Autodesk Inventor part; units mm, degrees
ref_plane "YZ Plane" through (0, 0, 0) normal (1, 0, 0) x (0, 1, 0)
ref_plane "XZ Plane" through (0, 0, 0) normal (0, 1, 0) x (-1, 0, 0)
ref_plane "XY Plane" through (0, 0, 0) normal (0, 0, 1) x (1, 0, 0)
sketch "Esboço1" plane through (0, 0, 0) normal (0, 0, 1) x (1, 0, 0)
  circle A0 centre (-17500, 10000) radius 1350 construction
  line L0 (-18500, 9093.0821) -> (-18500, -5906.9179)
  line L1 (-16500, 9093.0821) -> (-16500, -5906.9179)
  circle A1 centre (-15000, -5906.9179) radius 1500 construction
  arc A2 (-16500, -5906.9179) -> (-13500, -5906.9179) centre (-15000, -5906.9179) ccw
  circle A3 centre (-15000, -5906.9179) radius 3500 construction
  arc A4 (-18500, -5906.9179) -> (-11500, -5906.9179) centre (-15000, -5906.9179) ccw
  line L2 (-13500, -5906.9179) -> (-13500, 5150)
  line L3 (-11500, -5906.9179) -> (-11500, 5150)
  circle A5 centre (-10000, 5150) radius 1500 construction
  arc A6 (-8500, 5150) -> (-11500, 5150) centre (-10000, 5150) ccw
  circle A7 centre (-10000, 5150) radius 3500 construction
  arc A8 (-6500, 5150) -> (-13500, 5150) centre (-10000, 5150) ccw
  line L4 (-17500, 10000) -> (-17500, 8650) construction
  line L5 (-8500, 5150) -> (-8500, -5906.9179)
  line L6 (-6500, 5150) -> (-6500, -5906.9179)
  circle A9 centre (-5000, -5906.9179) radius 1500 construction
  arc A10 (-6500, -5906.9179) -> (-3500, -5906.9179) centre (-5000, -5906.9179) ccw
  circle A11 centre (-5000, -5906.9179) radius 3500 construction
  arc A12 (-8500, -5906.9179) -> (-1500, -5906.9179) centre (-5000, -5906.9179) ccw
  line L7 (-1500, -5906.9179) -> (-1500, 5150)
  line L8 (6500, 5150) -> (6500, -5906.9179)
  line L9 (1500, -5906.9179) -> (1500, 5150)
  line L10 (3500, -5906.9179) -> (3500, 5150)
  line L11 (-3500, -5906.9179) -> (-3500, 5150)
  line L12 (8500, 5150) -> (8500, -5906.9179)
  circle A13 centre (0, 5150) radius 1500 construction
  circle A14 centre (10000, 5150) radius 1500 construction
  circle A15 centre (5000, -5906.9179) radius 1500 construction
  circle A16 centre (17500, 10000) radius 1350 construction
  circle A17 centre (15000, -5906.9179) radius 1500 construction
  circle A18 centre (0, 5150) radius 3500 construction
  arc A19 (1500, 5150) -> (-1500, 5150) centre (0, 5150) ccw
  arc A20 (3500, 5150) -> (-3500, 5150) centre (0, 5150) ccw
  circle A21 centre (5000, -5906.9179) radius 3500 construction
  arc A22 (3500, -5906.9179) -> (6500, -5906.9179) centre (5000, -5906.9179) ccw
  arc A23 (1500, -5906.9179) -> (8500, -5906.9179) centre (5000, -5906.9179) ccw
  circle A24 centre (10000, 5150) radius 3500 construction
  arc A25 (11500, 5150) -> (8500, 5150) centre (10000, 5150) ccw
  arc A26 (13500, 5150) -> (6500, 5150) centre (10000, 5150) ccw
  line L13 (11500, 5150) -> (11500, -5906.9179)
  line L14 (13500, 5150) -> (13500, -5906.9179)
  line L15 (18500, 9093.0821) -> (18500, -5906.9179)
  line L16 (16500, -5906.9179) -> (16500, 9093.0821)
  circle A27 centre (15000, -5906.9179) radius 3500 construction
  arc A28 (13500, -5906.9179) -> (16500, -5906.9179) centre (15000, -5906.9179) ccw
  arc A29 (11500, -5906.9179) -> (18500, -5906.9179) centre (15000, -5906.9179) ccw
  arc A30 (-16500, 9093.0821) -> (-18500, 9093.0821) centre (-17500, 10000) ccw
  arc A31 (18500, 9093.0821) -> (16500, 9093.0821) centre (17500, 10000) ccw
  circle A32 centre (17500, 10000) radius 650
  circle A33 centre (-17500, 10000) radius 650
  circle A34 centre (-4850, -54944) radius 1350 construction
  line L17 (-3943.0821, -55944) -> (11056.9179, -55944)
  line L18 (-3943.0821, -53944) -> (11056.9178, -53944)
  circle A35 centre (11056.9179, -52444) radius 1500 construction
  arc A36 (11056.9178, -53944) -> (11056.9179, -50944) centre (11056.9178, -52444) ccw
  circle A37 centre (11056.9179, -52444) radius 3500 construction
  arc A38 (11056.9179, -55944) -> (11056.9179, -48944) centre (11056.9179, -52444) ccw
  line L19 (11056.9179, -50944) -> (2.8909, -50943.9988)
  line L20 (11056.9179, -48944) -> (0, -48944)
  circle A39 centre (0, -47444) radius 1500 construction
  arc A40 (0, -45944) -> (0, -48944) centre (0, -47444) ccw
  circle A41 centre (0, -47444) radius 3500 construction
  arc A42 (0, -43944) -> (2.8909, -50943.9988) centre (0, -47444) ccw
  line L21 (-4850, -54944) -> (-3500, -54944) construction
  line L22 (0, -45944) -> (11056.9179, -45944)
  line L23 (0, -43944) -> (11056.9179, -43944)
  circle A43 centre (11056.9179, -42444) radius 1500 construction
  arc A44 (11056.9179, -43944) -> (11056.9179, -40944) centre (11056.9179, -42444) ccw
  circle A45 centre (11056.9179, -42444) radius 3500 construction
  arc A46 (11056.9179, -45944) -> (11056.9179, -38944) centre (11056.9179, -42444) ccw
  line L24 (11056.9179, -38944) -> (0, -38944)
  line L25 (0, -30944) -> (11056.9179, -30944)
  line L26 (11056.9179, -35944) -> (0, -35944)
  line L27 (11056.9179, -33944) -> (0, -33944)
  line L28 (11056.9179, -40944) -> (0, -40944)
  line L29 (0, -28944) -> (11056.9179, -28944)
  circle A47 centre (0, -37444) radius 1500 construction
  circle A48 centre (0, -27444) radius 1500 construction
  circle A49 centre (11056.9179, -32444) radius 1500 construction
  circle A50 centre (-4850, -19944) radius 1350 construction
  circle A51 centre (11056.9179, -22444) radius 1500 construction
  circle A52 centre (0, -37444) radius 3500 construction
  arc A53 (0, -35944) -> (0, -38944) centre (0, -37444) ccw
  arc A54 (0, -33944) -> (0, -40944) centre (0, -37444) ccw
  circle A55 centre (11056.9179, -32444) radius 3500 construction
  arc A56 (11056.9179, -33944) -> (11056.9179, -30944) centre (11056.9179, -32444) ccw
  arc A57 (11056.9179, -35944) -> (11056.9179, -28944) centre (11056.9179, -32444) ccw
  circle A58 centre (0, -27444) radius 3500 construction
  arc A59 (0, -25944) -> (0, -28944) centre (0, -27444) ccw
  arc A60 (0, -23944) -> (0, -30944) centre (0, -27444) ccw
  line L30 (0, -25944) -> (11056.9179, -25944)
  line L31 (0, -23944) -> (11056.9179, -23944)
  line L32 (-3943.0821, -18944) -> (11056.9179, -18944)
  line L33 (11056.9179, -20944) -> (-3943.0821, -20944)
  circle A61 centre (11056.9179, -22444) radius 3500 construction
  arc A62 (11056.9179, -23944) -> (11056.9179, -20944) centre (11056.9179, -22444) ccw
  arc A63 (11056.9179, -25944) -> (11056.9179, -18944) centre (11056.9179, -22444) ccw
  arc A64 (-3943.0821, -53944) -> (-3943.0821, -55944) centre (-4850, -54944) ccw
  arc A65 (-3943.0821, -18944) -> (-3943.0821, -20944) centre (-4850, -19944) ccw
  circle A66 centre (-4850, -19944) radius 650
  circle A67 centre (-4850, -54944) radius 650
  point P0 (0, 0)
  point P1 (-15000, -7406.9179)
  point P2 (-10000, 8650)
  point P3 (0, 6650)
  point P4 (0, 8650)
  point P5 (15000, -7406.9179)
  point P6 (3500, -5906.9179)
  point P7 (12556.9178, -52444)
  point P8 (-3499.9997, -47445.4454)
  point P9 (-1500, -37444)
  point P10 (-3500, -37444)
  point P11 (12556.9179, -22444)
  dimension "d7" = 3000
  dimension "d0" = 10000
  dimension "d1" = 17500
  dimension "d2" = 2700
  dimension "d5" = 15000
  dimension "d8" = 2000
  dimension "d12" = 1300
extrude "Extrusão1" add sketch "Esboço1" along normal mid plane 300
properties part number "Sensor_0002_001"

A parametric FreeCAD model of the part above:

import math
import FreeCAD as App
import Part
import Sketcher
from FreeCAD import Vector
Q = App.Units.Quantity

doc = App.newDocument("Part")
params = doc.addObject("Spreadsheet::Sheet", "Params")
for row, (alias, value) in enumerate([
    ("sketch1_diameter", "1300 mm"),
    ("sketch1_radius", "1350 mm"),
    ("sketch1_radius2", "1500 mm"),
    ("sketch1_width", "15000 mm"),
    ("pad1_length", "300 mm"),
], start=1):
    params.set(f"A{row}", alias)
    params.set(f"B{row}", "=" + value)
    params.setAlias(f"B{row}", alias)

body = doc.addObject("PartDesign::Body", "Body")
body.AllowCompound = True

sketch1 = doc.addObject("Sketcher::SketchObject", "Sketch")
body.addObject(sketch1)
sketch1.AttachmentSupport = (doc.XY_Plane, [""])
sketch1.MapMode = "FlatFace"
sketch1.addGeometry([
    Part.ArcOfCircle(Part.Circle(Vector(-17500, 10000, 0), Vector(0, 0, 1), 1350.000029), math.radians(-42.205448), math.radians(222.205448)),
    Part.LineSegment(Vector(-18500, 9093.0821, 0), Vector(-18500, -5906.9179, 0)),
    Part.ArcOfCircle(Part.Circle(Vector(-15000, -5906.9179, 0), Vector(0, 0, 1), 3500), math.radians(180), math.radians(360)),
    Part.LineSegment(Vector(-11500, -5906.9179, 0), Vector(-11500, 5150, 0)),
    Part.ArcOfCircle(Part.Circle(Vector(-10000, 5150, 0), Vector(0, 0, 1), 1500), math.radians(0), math.radians(180)),
    Part.LineSegment(Vector(-8500, 5150, 0), Vector(-8500, -5906.9179, 0)),
    Part.ArcOfCircle(Part.Circle(Vector(-5000, -5906.9179, 0), Vector(0, 0, 1), 3500), math.radians(180), math.radians(360)),
    Part.LineSegment(Vector(-1500, -5906.9179, 0), Vector(-1500, 5150, 0)),
    Part.ArcOfCircle(Part.Circle(Vector(0, 5150, 0), Vector(0, 0, 1), 1500), math.radians(0), math.radians(180)),
    Part.LineSegment(Vector(1500, 5150, 0), Vector(1500, -5906.9179, 0)),
    Part.ArcOfCircle(Part.Circle(Vector(5000, -5906.9179, 0), Vector(0, 0, 1), 3500), math.radians(180), math.radians(360)),
    Part.LineSegment(Vector(8500, -5906.9179, 0), Vector(8500, 5150, 0)),
    Part.ArcOfCircle(Part.Circle(Vector(10000, 5150, 0), Vector(0, 0, 1), 1500), math.radians(0), math.radians(180)),
    Part.LineSegment(Vector(11500, 5150, 0), Vector(11500, -5906.9179, 0)),
    Part.ArcOfCircle(Part.Circle(Vector(15000, -5906.9179, 0), Vector(0, 0, 1), 3500), math.radians(180), math.radians(360)),
    Part.LineSegment(Vector(18500, -5906.9179, 0), Vector(18500, 9093.0821, 0)),
    Part.ArcOfCircle(Part.Circle(Vector(17500, 10000, 0), Vector(0, 0, 1), 1350.000029), math.radians(-42.205448), math.radians(222.205448)),
    Part.LineSegment(Vector(16500, 9093.0821, 0), Vector(16500, -5906.9179, 0)),
    Part.ArcOfCircle(Part.Circle(Vector(15000, -5906.9179, 0), Vector(0, 0, 1), 1500), math.radians(180), math.radians(360)),
    Part.LineSegment(Vector(13500, -5906.9179, 0), Vector(13500, 5150, 0)),
    Part.ArcOfCircle(Part.Circle(Vector(10000, 5150, 0), Vector(0, 0, 1), 3500), math.radians(0), math.radians(180)),
    Part.LineSegment(Vector(6500, 5150, 0), Vector(6500, -5906.9179, 0)),
    Part.ArcOfCircle(Part.Circle(Vector(5000, -5906.9179, 0), Vector(0, 0, 1), 1500), math.radians(180), math.radians(360)),
    Part.LineSegment(Vector(3500, -5906.9179, 0), Vector(3500, 5150, 0)),
    Part.ArcOfCircle(Part.Circle(Vector(0, 5150, 0), Vector(0, 0, 1), 3500), math.radians(0), math.radians(180)),
    Part.LineSegment(Vector(-3500, 5150, 0), Vector(-3500, -5906.9179, 0)),
    Part.ArcOfCircle(Part.Circle(Vector(-5000, -5906.9179, 0), Vector(0, 0, 1), 1500), math.radians(180), math.radians(360)),
    Part.LineSegment(Vector(-6500, -5906.9179, 0), Vector(-6500, 5150, 0)),
    Part.ArcOfCircle(Part.Circle(Vector(-10000, 5150, 0), Vector(0, 0, 1), 3500), math.radians(0), math.radians(180)),
    Part.LineSegment(Vector(-13500, 5150, 0), Vector(-13500, -5906.9179, 0)),
    Part.ArcOfCircle(Part.Circle(Vector(-15000, -5906.9179, 0), Vector(0, 0, 1), 1500), math.radians(180), math.radians(360)),
    Part.LineSegment(Vector(-16500, -5906.9179, 0), Vector(-16500, 9093.0821, 0)),
    Part.Circle(Vector(-17500, 10000, 0), Vector(0, 0, 1), 650),
    Part.Circle(Vector(17500, 10000, 0), Vector(0, 0, 1), 650),
    Part.ArcOfCircle(Part.Circle(Vector(-4850, -54944, 0), Vector(0, 0, 1), 1350.000029), math.radians(47.794552), math.radians(312.205448)),
    Part.LineSegment(Vector(-3943.0821, -55944, 0), Vector(11056.9179, -55944, 0)),
    Part.ArcOfCircle(Part.Circle(Vector(11056.9179, -52444, 0), Vector(0, 0, 1), 3500), math.radians(-90), math.radians(90)),
    Part.LineSegment(Vector(11056.9179, -48944, 0), Vector(0, -48944, 0)),
    Part.ArcOfCircle(Part.Circle(Vector(0, -47444, 0), Vector(0, 0, 1), 1500), math.radians(90), math.radians(270)),
    Part.LineSegment(Vector(0, -45944, 0), Vector(11056.9179, -45944, 0)),
    Part.ArcOfCircle(Part.Circle(Vector(11056.9179, -42444, 0), Vector(0, 0, 1), 3500), math.radians(-90), math.radians(90)),
    Part.LineSegment(Vector(11056.9179, -38944, 0), Vector(0, -38944, 0)),
    Part.ArcOfCircle(Part.Circle(Vector(0, -37444, 0), Vector(0, 0, 1), 1500), math.radians(90), math.radians(270)),
    Part.LineSegment(Vector(0, -35944, 0), Vector(11056.9179, -35944, 0)),
    Part.ArcOfCircle(Part.Circle(Vector(11056.9179, -32444, 0), Vector(0, 0, 1), 3500), math.radians(-90), math.radians(90)),
    Part.LineSegment(Vector(11056.9179, -28944, 0), Vector(0, -28944, 0)),
    Part.ArcOfCircle(Part.Circle(Vector(0, -27444, 0), Vector(0, 0, 1), 1500), math.radians(90), math.radians(270)),
    Part.LineSegment(Vector(0, -25944, 0), Vector(11056.9179, -25944, 0)),
    Part.ArcOfCircle(Part.Circle(Vector(11056.9179, -22444, 0), Vector(0, 0, 1), 3500), math.radians(-90), math.radians(90)),
    Part.LineSegment(Vector(11056.9179, -18944, 0), Vector(-3943.0821, -18944, 0)),
    Part.ArcOfCircle(Part.Circle(Vector(-4850, -19944, 0), Vector(0, 0, 1), 1350.000029), math.radians(47.794552), math.radians(312.205448)),
    Part.LineSegment(Vector(-3943.0821, -20944, 0), Vector(11056.9179, -20944, 0)),
    Part.ArcOfCircle(Part.Circle(Vector(11056.9179, -22444, 0), Vector(0, 0, 1), 1500), math.radians(-90), math.radians(90)),
    Part.LineSegment(Vector(11056.9179, -23944, 0), Vector(0, -23944, 0)),
    Part.ArcOfCircle(Part.Circle(Vector(0, -27444, 0), Vector(0, 0, 1), 3500), math.radians(90), math.radians(270)),
    Part.LineSegment(Vector(0, -30944, 0), Vector(11056.9179, -30944, 0)),
    Part.ArcOfCircle(Part.Circle(Vector(11056.9179, -32444, 0), Vector(0, 0, 1), 1500), math.radians(-90), math.radians(90)),
    Part.LineSegment(Vector(11056.9179, -33944, 0), Vector(0, -33944, 0)),
    Part.ArcOfCircle(Part.Circle(Vector(0, -37444, 0), Vector(0, 0, 1), 3500), math.radians(90), math.radians(270)),
    Part.LineSegment(Vector(0, -40944, 0), Vector(11056.9179, -40944, 0)),
    Part.ArcOfCircle(Part.Circle(Vector(11056.9179, -42444, 0), Vector(0, 0, 1), 1500), math.radians(-90), math.radians(90)),
    Part.LineSegment(Vector(11056.9179, -43944, 0), Vector(0, -43944, 0)),
    Part.ArcOfCircle(Part.Circle(Vector(0, -47444, 0), Vector(0, 0, 1), 3500), math.radians(90), math.radians(270.047325)),
    Part.LineSegment(Vector(2.8909, -50943.9988, 0), Vector(11056.9179, -50944, 0)),
    Part.ArcOfCircle(Part.Circle(Vector(11056.9178, -52444, 0), Vector(0, 0, 1), 1500), math.radians(-90), math.radians(89.999996)),
    Part.LineSegment(Vector(11056.9178, -53944, 0), Vector(-3943.0821, -53944, 0)),
    Part.Circle(Vector(-4850, -54944, 0), Vector(0, 0, 1), 650),
    Part.Circle(Vector(-4850, -19944, 0), Vector(0, 0, 1), 650),
], False)
sketch1.addConstraint([
    Sketcher.Constraint("Coincident", 0, 2, 1, 1),
    Sketcher.Constraint("Coincident", 1, 2, 2, 1),
    Sketcher.Constraint("Coincident", 2, 2, 3, 1),
    Sketcher.Constraint("Coincident", 3, 2, 4, 2),
    Sketcher.Constraint("Coincident", 4, 1, 5, 1),
    Sketcher.Constraint("Coincident", 5, 2, 6, 1),
    Sketcher.Constraint("Coincident", 6, 2, 7, 1),
    Sketcher.Constraint("Coincident", 7, 2, 8, 2),
    Sketcher.Constraint("Coincident", 8, 1, 9, 1),
    Sketcher.Constraint("Coincident", 9, 2, 10, 1),
    Sketcher.Constraint("Coincident", 10, 2, 11, 1),
    Sketcher.Constraint("Coincident", 11, 2, 12, 2),
    Sketcher.Constraint("Coincident", 12, 1, 13, 1),
    Sketcher.Constraint("Coincident", 13, 2, 14, 1),
    Sketcher.Constraint("Coincident", 14, 2, 15, 1),
    Sketcher.Constraint("Coincident", 15, 2, 16, 1),
    Sketcher.Constraint("Coincident", 16, 2, 17, 1),
    Sketcher.Constraint("Coincident", 17, 2, 18, 2),
    Sketcher.Constraint("Coincident", 18, 1, 19, 1),
    Sketcher.Constraint("Coincident", 19, 2, 20, 1),
    Sketcher.Constraint("Coincident", 20, 2, 21, 1),
    Sketcher.Constraint("Coincident", 21, 2, 22, 2),
    Sketcher.Constraint("Coincident", 22, 1, 23, 1),
    Sketcher.Constraint("Coincident", 23, 2, 24, 1),
    Sketcher.Constraint("Coincident", 24, 2, 25, 1),
    Sketcher.Constraint("Coincident", 25, 2, 26, 2),
    Sketcher.Constraint("Coincident", 26, 1, 27, 1),
    Sketcher.Constraint("Coincident", 27, 2, 28, 1),
    Sketcher.Constraint("Coincident", 28, 2, 29, 1),
    Sketcher.Constraint("Coincident", 29, 2, 30, 2),
    Sketcher.Constraint("Coincident", 30, 1, 31, 1),
    Sketcher.Constraint("Coincident", 31, 2, 0, 1),
    Sketcher.Constraint("Coincident", 34, 2, 35, 1),
    Sketcher.Constraint("Coincident", 35, 2, 36, 1),
    Sketcher.Constraint("Coincident", 36, 2, 37, 1),
    Sketcher.Constraint("Coincident", 37, 2, 38, 2),
    Sketcher.Constraint("Coincident", 38, 1, 39, 1),
    Sketcher.Constraint("Coincident", 39, 2, 40, 1),
    Sketcher.Constraint("Coincident", 40, 2, 41, 1),
    Sketcher.Constraint("Coincident", 41, 2, 42, 2),
    Sketcher.Constraint("Coincident", 42, 1, 43, 1),
    Sketcher.Constraint("Coincident", 43, 2, 44, 1),
    Sketcher.Constraint("Coincident", 44, 2, 45, 1),
    Sketcher.Constraint("Coincident", 45, 2, 46, 2),
    Sketcher.Constraint("Coincident", 46, 1, 47, 1),
    Sketcher.Constraint("Coincident", 47, 2, 48, 1),
    Sketcher.Constraint("Coincident", 48, 2, 49, 1),
    Sketcher.Constraint("Coincident", 49, 2, 50, 1),
    Sketcher.Constraint("Coincident", 50, 2, 51, 1),
    Sketcher.Constraint("Coincident", 51, 2, 52, 2),
    Sketcher.Constraint("Coincident", 52, 1, 53, 1),
    Sketcher.Constraint("Coincident", 53, 2, 54, 1),
    Sketcher.Constraint("Coincident", 54, 2, 55, 1),
    Sketcher.Constraint("Coincident", 55, 2, 56, 2),
    Sketcher.Constraint("Coincident", 56, 1, 57, 1),
    Sketcher.Constraint("Coincident", 57, 2, 58, 1),
    Sketcher.Constraint("Coincident", 58, 2, 59, 1),
    Sketcher.Constraint("Coincident", 59, 2, 60, 2),
    Sketcher.Constraint("Coincident", 60, 1, 61, 1),
    Sketcher.Constraint("Coincident", 61, 2, 62, 1),
    Sketcher.Constraint("Coincident", 62, 2, 63, 1),
    Sketcher.Constraint("Coincident", 63, 2, 64, 2),
    Sketcher.Constraint("Coincident", 64, 1, 65, 1),
    Sketcher.Constraint("Coincident", 65, 2, 34, 1),
    Sketcher.Constraint("Vertical", 1),
    Sketcher.Constraint("Vertical", 3),
    Sketcher.Constraint("Vertical", 5),
    Sketcher.Constraint("Vertical", 7),
    Sketcher.Constraint("Vertical", 9),
    Sketcher.Constraint("Vertical", 11),
    Sketcher.Constraint("Vertical", 13),
    Sketcher.Constraint("Vertical", 15),
    Sketcher.Constraint("Vertical", 17),
    Sketcher.Constraint("Vertical", 19),
    Sketcher.Constraint("Vertical", 21),
    Sketcher.Constraint("Vertical", 23),
    Sketcher.Constraint("Vertical", 25),
    Sketcher.Constraint("Vertical", 27),
    Sketcher.Constraint("Vertical", 29),
    Sketcher.Constraint("Vertical", 31),
    Sketcher.Constraint("Horizontal", 35),
    Sketcher.Constraint("Horizontal", 37),
    Sketcher.Constraint("Horizontal", 39),
    Sketcher.Constraint("Horizontal", 41),
    Sketcher.Constraint("Horizontal", 43),
    Sketcher.Constraint("Horizontal", 45),
    Sketcher.Constraint("Horizontal", 47),
    Sketcher.Constraint("Horizontal", 49),
    Sketcher.Constraint("Horizontal", 51),
    Sketcher.Constraint("Horizontal", 53),
    Sketcher.Constraint("Horizontal", 55),
    Sketcher.Constraint("Horizontal", 57),
    Sketcher.Constraint("Horizontal", 59),
    Sketcher.Constraint("Horizontal", 61),
    Sketcher.Constraint("Horizontal", 65),
    Sketcher.Constraint("Coincident", 18, 3, 14, 3),
    Sketcher.Constraint("Coincident", 20, 3, 12, 3),
    Sketcher.Constraint("Coincident", 22, 3, 10, 3),
    Sketcher.Constraint("Coincident", 24, 3, 8, 3),
    Sketcher.Constraint("Coincident", 26, 3, 6, 3),
    Sketcher.Constraint("Coincident", 28, 3, 4, 3),
    Sketcher.Constraint("Coincident", 30, 3, 2, 3),
    Sketcher.Constraint("Coincident", 32, 3, 0, 3),
    Sketcher.Constraint("Coincident", 33, 3, 16, 3),
    Sketcher.Constraint("Coincident", 52, 3, 48, 3),
    Sketcher.Constraint("Coincident", 54, 3, 46, 3),
    Sketcher.Constraint("Coincident", 56, 3, 44, 3),
    Sketcher.Constraint("Coincident", 58, 3, 42, 3),
    Sketcher.Constraint("Coincident", 60, 3, 40, 3),
    Sketcher.Constraint("Coincident", 62, 3, 38, 3),
    Sketcher.Constraint("Coincident", 64, 3, 36, 3),
    Sketcher.Constraint("Coincident", 66, 3, 34, 3),
    Sketcher.Constraint("Coincident", 67, 3, 50, 3),
    Sketcher.Constraint("Equal", 2, 6),
    Sketcher.Constraint("Equal", 4, 8),
    Sketcher.Constraint("Equal", 6, 10),
    Sketcher.Constraint("Equal", 8, 12),
    Sketcher.Constraint("Equal", 10, 14),
    Sketcher.Constraint("Equal", 0, 16),
    Sketcher.Constraint("Equal", 12, 18),
    Sketcher.Constraint("Equal", 32, 33),
    Sketcher.Constraint("Equal", 16, 34),
    Sketcher.Constraint("Equal", 28, 36),
    Sketcher.Constraint("Equal", 30, 38),
    Sketcher.Constraint("Equal", 36, 40),
    Sketcher.Constraint("Equal", 38, 42),
    Sketcher.Constraint("Equal", 40, 44),
    Sketcher.Constraint("Equal", 42, 46),
    Sketcher.Constraint("Equal", 44, 48),
    Sketcher.Constraint("Equal", 34, 50),
    Sketcher.Constraint("Equal", 46, 52),
    Sketcher.Constraint("Equal", 60, 64),
    Sketcher.Constraint("Equal", 33, 66),
    Sketcher.Constraint("Equal", 66, 67),
    Sketcher.Constraint("Symmetric", 6, 3, 10, 3, -2),
    Sketcher.Constraint("Symmetric", 0, 3, 16, 3, -2),
    Sketcher.Constraint("PointOnObject", 38, 3, -2),
    Sketcher.Constraint("PointOnObject", 42, 3, -2),
    Sketcher.Constraint("PointOnObject", 46, 3, -2),
    Sketcher.Constraint("PointOnObject", 37, 2, -2),
    Sketcher.Constraint("PointOnObject", 41, 2, -2),
    Sketcher.Constraint("PointOnObject", 45, 2, -2),
    Sketcher.Constraint("PointOnObject", 53, 2, -2),
    Sketcher.Constraint("PointOnObject", 57, 2, -2),
    Sketcher.Constraint("PointOnObject", 61, 2, -2),
    Sketcher.Constraint("Horizontal", 2, 3, 6, 3),
    Sketcher.Constraint("Horizontal", 4, 3, 8, 3),
    Sketcher.Constraint("Horizontal", 8, 3, 12, 3),
    Sketcher.Constraint("Horizontal", 10, 3, 14, 3),
    Sketcher.Constraint("Horizontal", 30, 3, 1, 2),
    Sketcher.Constraint("Horizontal", 28, 3, 3, 2),
    Sketcher.Constraint("Vertical", 36, 3, 40, 3),
    Sketcher.Constraint("Vertical", 40, 3, 44, 3),
    Sketcher.Constraint("Vertical", 44, 3, 48, 3),
    Sketcher.Constraint("Vertical", 34, 3, 50, 3),
    Sketcher.Constraint("Vertical", 64, 3, 35, 2),
    Sketcher.Constraint("Equal", 37, 39),
    Sketcher.Constraint("Equal", 39, 41),
    Sketcher.Constraint("Equal", 41, 43),
    Sketcher.Constraint("Equal", 43, 45),
    Sketcher.Constraint("Equal", 45, 47),
    Sketcher.Constraint("Equal", 35, 49),
    Sketcher.Constraint("Equal", 49, 51),
    Sketcher.Constraint("Equal", 47, 53),
    Sketcher.Constraint("Equal", 53, 55),
    Sketcher.Constraint("Equal", 55, 57),
    Sketcher.Constraint("Equal", 57, 59),
    Sketcher.Constraint("Equal", 59, 61),
    Sketcher.Constraint("Equal", 51, 65),
    Sketcher.Constraint("Equal", 65, 1),
    Sketcher.Constraint("Equal", 61, 3),
    Sketcher.Constraint("Equal", 3, 5),
    Sketcher.Constraint("Equal", 5, 7),
    Sketcher.Constraint("Equal", 7, 9),
    Sketcher.Constraint("Equal", 9, 11),
    Sketcher.Constraint("Equal", 11, 13),
    Sketcher.Constraint("Equal", 1, 15),
    Sketcher.Constraint("Equal", 15, 17),
    Sketcher.Constraint("Equal", 13, 19),
    Sketcher.Constraint("Equal", 19, 21),
    Sketcher.Constraint("Equal", 21, 23),
    Sketcher.Constraint("Equal", 23, 25),
    Sketcher.Constraint("Equal", 25, 27),
    Sketcher.Constraint("Equal", 27, 29),
    Sketcher.Constraint("Equal", 17, 31),
    Sketcher.Constraint("Diameter", 32, Q("1300 mm")),
    Sketcher.Constraint("Radius", 0, Q("1350 mm")),
    Sketcher.Constraint("Radius", 4, Q("1500 mm")),
    Sketcher.Constraint("DistanceX", 35, 1, 35, 2, Q("15000 mm")),
    Sketcher.Constraint("DistanceX", 0, 3, -1, 1, Q("17500 mm")),
    Sketcher.Constraint("DistanceY", -1, 1, 0, 3, Q("10000 mm")),
    Sketcher.Constraint("DistanceX", 2, 3, -1, 1, Q("15000 mm")),
    Sketcher.Constraint("DistanceY", -1, 1, 4, 3, Q("5150 mm")),
    Sketcher.Constraint("DistanceX", 34, 3, -1, 1, Q("4850 mm")),
    Sketcher.Constraint("DistanceY", 34, 3, -1, 1, Q("54944 mm")),
    Sketcher.Constraint("DistanceY", 36, 3, -1, 1, Q("52444 mm")),
    Sketcher.Constraint("DistanceY", 50, 3, -1, 1, Q("19944 mm")),
    Sketcher.Constraint("DistanceY", -1, 1, 7, 2, Q("5150 mm")),
    Sketcher.Constraint("DistanceY", -1, 1, 11, 2, Q("5150 mm")),
    Sketcher.Constraint("DistanceY", -1, 1, 19, 2, Q("5150 mm")),
    Sketcher.Constraint("DistanceY", -1, 1, 23, 2, Q("5150 mm")),
    Sketcher.Constraint("DistanceY", -1, 1, 27, 2, Q("5150 mm")),
    Sketcher.Constraint("DistanceX", 37, 2, 37, 1, Q("11056.918 mm")),
    Sketcher.Constraint("Distance", 63, Q("11054.027 mm")),
    Sketcher.Constraint("DistanceY", 5, 2, -1, 1, Q("5906.918 mm")),
    Sketcher.Constraint("DistanceY", 9, 2, -1, 1, Q("5906.918 mm")),
    Sketcher.Constraint("DistanceY", 13, 2, -1, 1, Q("5906.918 mm")),
    Sketcher.Constraint("DistanceY", 21, 2, -1, 1, Q("5906.918 mm")),
    Sketcher.Constraint("DistanceY", 25, 2, -1, 1, Q("5906.918 mm")),
    Sketcher.Constraint("DistanceY", 29, 2, -1, 1, Q("5906.918 mm")),
    Sketcher.Constraint("DistanceX", -1, 1, 39, 2, Q("11056.918 mm")),
    Sketcher.Constraint("DistanceX", -1, 1, 43, 2, Q("11056.918 mm")),
    Sketcher.Constraint("DistanceX", -1, 1, 47, 2, Q("11056.918 mm")),
    Sketcher.Constraint("DistanceX", -1, 1, 55, 2, Q("11056.918 mm")),
    Sketcher.Constraint("DistanceX", -1, 1, 59, 2, Q("11056.918 mm")),
    Sketcher.Constraint("DistanceX", -1, 1, 63, 2, Q("11056.918 mm")),
])
sketch1.setExpression("Constraints[185]", "Params.sketch1_diameter")
sketch1.setExpression("Constraints[186]", "Params.sketch1_radius")
sketch1.setExpression("Constraints[187]", "Params.sketch1_radius2")
sketch1.setExpression("Constraints[188]", "Params.sketch1_width")
pad1 = doc.addObject("PartDesign::Pad", "Pad")
body.addObject(pad1)
pad1.Profile = sketch1
pad1.setExpression("Length", "Params.pad1_length")
pad1.Midplane = True

doc.recompute()
